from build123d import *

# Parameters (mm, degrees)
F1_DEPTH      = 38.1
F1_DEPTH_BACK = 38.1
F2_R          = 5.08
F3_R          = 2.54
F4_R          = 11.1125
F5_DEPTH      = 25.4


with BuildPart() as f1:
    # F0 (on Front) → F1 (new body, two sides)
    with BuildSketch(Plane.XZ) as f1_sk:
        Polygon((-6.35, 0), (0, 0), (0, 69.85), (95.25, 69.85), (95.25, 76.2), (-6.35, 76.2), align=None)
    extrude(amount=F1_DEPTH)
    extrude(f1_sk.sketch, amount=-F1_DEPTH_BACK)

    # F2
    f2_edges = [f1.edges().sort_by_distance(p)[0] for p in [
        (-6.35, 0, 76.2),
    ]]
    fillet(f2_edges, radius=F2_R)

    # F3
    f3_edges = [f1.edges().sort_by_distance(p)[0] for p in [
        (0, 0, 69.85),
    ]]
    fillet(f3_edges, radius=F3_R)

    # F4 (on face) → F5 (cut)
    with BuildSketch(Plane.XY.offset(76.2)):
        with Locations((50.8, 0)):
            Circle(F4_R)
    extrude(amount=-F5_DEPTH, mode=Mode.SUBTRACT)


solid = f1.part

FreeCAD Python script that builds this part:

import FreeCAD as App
import Part
import Sketcher
Q = App.Units.Quantity


def edges_at(feature, points):
    """Names of the edges that pass closest to the given points."""
    edges = feature.Shape.Edges
    near = lambda p: min(range(len(edges)), key=lambda i: edges[i].distToShape(Part.Vertex(*p))[0])
    return sorted({f"Edge{near(p) + 1}" for p in points})

doc = App.newDocument("Part")
params = doc.addObject("Spreadsheet::Sheet", "Params")
for row, (alias, value) in enumerate([
    ("sketch1_width", "4 in"),
    ("sketch1_height", "3 in"),
    ("sketch1_width2", "0.25 in"),
    ("pad1_length", "1.5 in"),
    ("pad1_length2", "1.5 in"),
    ("fillet_radius", "0.2 in"),
    ("fillet2_radius", "0.1 in"),
    ("sketch2_diameter", "0.875 in"),
    ("pocket1_length", "1 in"),
], start=1):
    params.set(f"A{row}", alias)
    params.set(f"B{row}", "=" + value)
    params.setAlias(f"B{row}", alias)

body = doc.addObject("PartDesign::Body", "Body")

# Sketch on XZ plane
sketch1 = body.newObject("Sketcher::SketchObject", "Sketch")
sketch1.AttachmentSupport = (doc.getObject("XZ_Plane"), [""])
sketch1.MapMode = "FlatFace"
sketch1.addGeometry([
    Part.LineSegment(App.Vector(-6, 0, 0), App.Vector(0, 0, 0)),  # 0
    Part.LineSegment(App.Vector(0, 0, 0), App.Vector(0, 70, 0)),  # 1
    Part.LineSegment(App.Vector(0, 70, 0), App.Vector(95, 70, 0)),  # 2
    Part.LineSegment(App.Vector(95, 70, 0), App.Vector(95, 76, 0)),  # 3
    Part.LineSegment(App.Vector(95, 76, 0), App.Vector(-6, 76, 0)),  # 4
    Part.LineSegment(App.Vector(-6, 76, 0), App.Vector(-6, 0, 0)),  # 5
], False)
sketch1.addConstraint([
    Sketcher.Constraint("Coincident", 0, 2, 1, 1),
    Sketcher.Constraint("Coincident", 1, 2, 2, 1),
    Sketcher.Constraint("Coincident", 2, 2, 3, 1),
    Sketcher.Constraint("Coincident", 3, 2, 4, 1),
    Sketcher.Constraint("Coincident", 4, 2, 5, 1),
    Sketcher.Constraint("Coincident", 5, 2, 0, 1),
    Sketcher.Constraint("Horizontal", 0),
    Sketcher.Constraint("Vertical", 1),
    Sketcher.Constraint("Horizontal", 2),
    Sketcher.Constraint("Vertical", 3),
    Sketcher.Constraint("Horizontal", 4),
    Sketcher.Constraint("Vertical", 5),
    Sketcher.Constraint("Coincident", 0, 2, -1, 1),
    Sketcher.Constraint("Equal", 0, 3),
    Sketcher.Constraint("DistanceX", 4, 2, 4, 1, Q("4 in")),
    Sketcher.Constraint("DistanceY", 5, 2, 5, 1, Q("3 in")),
    Sketcher.Constraint("DistanceX", 0, 1, 0, 2, Q("0.25 in")),
])
sketch1.setExpression("Constraints[14]", "Params.sketch1_width")
sketch1.setExpression("Constraints[15]", "Params.sketch1_height")
sketch1.setExpression("Constraints[16]", "Params.sketch1_width2")
pad1 = body.newObject("PartDesign::Pad", "Pad")
pad1.Profile = sketch1
pad1.Type = "TwoLengths"
pad1.setExpression("Length", "Params.pad1_length")
pad1.setExpression("Length2", "Params.pad1_length2")
doc.recompute()

fillet = body.newObject("PartDesign::Fillet", "Fillet")
fillet.Base = (pad1, edges_at(pad1, [(-6.35, 0, 76.2)]))
fillet.setExpression("Radius", "Params.fillet_radius")
doc.recompute()

fillet2 = body.newObject("PartDesign::Fillet", "Fillet001")
fillet2.Base = (fillet, edges_at(fillet, [(0, 0, 69.85)]))
fillet2.setExpression("Radius", "Params.fillet2_radius")

# Sketch on XY plane
sketch2 = body.newObject("Sketcher::SketchObject", "Sketch001")
sketch2.AttachmentSupport = (doc.getObject("XY_Plane"), [""])
sketch2.MapMode = "FlatFace"
sketch2.AttachmentOffset = App.Placement(App.Vector(0, 0, 3 * 25.4), App.Rotation())
sketch2.addGeometry(Part.Circle(App.Vector(51, 0, 0), App.Vector(0, 0, 1), 11), False)
sketch2.addConstraint([
    Sketcher.Constraint("PointOnObject", 0, 3, -1),
    Sketcher.Constraint("Diameter", 0, Q("0.875 in")),
    Sketcher.Constraint("DistanceX", -1, 1, 0, 3, Q("2 in")),
])
sketch2.setExpression("Constraints[1]", "Params.sketch2_diameter")
pocket1 = body.newObject("PartDesign::Pocket", "Pocket")
pocket1.Profile = sketch2
pocket1.setExpression("Length", "Params.pocket1_length")

doc.recompute()
